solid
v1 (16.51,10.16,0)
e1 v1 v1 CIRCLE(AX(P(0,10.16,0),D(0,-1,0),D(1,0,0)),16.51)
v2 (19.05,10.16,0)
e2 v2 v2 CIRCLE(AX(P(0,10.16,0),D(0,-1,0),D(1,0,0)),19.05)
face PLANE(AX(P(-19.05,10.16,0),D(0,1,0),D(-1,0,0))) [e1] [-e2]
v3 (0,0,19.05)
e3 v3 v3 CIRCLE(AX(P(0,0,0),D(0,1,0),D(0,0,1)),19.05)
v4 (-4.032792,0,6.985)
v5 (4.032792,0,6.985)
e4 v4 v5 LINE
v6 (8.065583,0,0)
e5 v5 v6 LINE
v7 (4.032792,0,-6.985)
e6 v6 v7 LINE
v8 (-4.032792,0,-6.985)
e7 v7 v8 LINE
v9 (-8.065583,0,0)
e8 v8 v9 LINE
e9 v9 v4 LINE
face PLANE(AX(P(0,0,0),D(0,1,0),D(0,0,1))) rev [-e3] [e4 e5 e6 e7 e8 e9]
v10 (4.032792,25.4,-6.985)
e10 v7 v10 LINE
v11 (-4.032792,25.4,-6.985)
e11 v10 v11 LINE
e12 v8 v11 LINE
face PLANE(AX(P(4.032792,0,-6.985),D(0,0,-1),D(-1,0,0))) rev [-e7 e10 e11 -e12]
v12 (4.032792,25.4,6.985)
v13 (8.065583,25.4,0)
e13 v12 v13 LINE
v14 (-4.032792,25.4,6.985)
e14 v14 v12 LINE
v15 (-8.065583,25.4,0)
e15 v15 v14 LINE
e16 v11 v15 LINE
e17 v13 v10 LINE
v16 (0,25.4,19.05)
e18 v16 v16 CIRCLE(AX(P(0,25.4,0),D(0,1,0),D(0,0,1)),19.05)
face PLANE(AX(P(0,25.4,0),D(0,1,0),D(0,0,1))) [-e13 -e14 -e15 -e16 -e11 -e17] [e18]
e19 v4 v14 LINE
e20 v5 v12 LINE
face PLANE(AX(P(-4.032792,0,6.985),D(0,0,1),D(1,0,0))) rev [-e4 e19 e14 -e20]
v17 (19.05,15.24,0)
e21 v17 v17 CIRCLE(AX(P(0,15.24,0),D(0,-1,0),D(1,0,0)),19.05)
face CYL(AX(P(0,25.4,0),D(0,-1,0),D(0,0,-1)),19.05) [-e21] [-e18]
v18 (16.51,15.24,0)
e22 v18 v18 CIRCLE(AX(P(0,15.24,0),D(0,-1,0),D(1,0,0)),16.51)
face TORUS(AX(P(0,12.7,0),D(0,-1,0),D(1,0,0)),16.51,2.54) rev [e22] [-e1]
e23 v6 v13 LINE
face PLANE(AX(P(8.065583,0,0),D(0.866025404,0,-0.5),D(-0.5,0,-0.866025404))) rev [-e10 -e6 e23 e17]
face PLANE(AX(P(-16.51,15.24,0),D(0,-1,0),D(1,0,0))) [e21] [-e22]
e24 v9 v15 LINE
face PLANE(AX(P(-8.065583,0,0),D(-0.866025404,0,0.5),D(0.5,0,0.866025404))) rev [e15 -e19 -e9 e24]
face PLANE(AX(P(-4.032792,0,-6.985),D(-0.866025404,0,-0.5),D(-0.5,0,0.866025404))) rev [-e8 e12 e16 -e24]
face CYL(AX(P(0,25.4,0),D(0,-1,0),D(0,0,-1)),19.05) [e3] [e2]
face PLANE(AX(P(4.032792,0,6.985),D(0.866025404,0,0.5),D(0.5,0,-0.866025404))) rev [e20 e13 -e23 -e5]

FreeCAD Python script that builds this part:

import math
import FreeCAD as App
import Part
import Sketcher

V = App.Vector
Q = App.Units.Quantity


def add_polygon(sketch, points):
    """Adds a closed chain of lines whose ends are joined by coincident constraints."""
    first, n = sketch.GeometryCount, len(points)
    for a, b in zip(points, points[1:] + points[:1]):
        sketch.addGeometry(Part.LineSegment(App.Vector(*a, 0), App.Vector(*b, 0)), False)
    for i in range(n):
        sketch.addConstraint(Sketcher.Constraint("Coincident", first + i, 2, first + (i + 1) % n, 1))

doc = App.newDocument("Part")
body = doc.addObject("PartDesign::Body", "Body")

# Sketch on XZ plane
sketch1 = body.newObject("Sketcher::SketchObject", "Sketch")
sketch1.AttachmentSupport = (doc.getObject("XZ_Plane"), [""])
sketch1.MapMode = "FlatFace"
sketch1.addGeometry(Part.Circle(V(0, 0, 0), V(0, 0, 1), 19), False)
sketch1.addConstraint(Sketcher.Constraint("Coincident", 0, 3, -1, 1))
sketch1.addConstraint(Sketcher.Constraint("Diameter", 0, Q("1.5 in")))
pad1 = body.newObject("PartDesign::Pad", "Pad")
pad1.Profile = sketch1
pad1.Length = Q("1 in")
pad1.Reversed = True

# Sketch on XY plane
sketch2 = body.newObject("Sketcher::SketchObject", "Sketch001")
sketch2.AttachmentSupport = (doc.getObject("XY_Plane"), [""])
sketch2.MapMode = "FlatFace"
sketch2.addGeometry(Part.LineSegment(V(-16.5, 15.2, 0), V(-19.1, 15.2, 0)), False)
sketch2.addGeometry(Part.LineSegment(V(-19.1, 15.2, 0), V(-19.1, 10.2, 0)), False)
sketch2.addGeometry(Part.LineSegment(V(-19.1, 10.2, 0), V(-16.5, 10.2, 0)), False)
sketch2.addGeometry(Part.ArcOfCircle(Part.Circle(V(-16.5, 12.7, 0), V(0, 0, 1), 2.5), math.radians(-90), math.radians(90)), False)
sketch2.addConstraint(Sketcher.Constraint("Coincident", 0, 2, 1, 1))
sketch2.addConstraint(Sketcher.Constraint("Coincident", 1, 2, 2, 1))
sketch2.addConstraint(Sketcher.Constraint("Tangent", 2, 2, 3, 1))
sketch2.addConstraint(Sketcher.Constraint("Tangent", 3, 2, 0, 1))
sketch2.addConstraint(Sketcher.Constraint("Horizontal", 0))
sketch2.addConstraint(Sketcher.Constraint("Vertical", 1))
sketch2.addConstraint(Sketcher.Constraint("Horizontal", 2))
sketch2.addConstraint(Sketcher.Constraint("Radius", 3, Q("0.1 in")))
sketch2.addConstraint(Sketcher.Constraint("DistanceX", 0, 2, 0, 1, Q("0.1 in")))
sketch2.addConstraint(Sketcher.Constraint("DistanceY", -1, 1, 3, 3, Q("0.5 in")))
sketch2.addConstraint(Sketcher.Constraint("DistanceX", 3, 3, -1, 1, Q("0.65 in")))
groove = body.newObject("PartDesign::Groove", "Groove")
groove.Profile = sketch2
groove.ReferenceAxis = (sketch2, ["V_Axis"])
groove.Angle = 360

# Sketch on XZ plane
sketch3 = body.newObject("Sketcher::SketchObject", "Sketch002")
sketch3.AttachmentSupport = (doc.getObject("XZ_Plane"), [""])
sketch3.MapMode = "FlatFace"
sketch3.AttachmentOffset = App.Placement(V(0, 0, -1 * 25.4), App.Rotation())
add_polygon(sketch3, [(8, 0), (4, -7), (-4, -7), (-8, 0), (-4, 7), (4, 7)])  # lines 0-5
sketch3.addConstraint(Sketcher.Constraint("Horizontal", 1))
sketch3.addConstraint(Sketcher.Constraint("Horizontal", 4))
sketch3.addConstraint(Sketcher.Constraint("Symmetric", 0, 2, 3, 2, -1, 1))
sketch3.addConstraint(Sketcher.Constraint("Symmetric", 2, 2, 5, 2, -1, 1))
sketch3.addConstraint(Sketcher.Constraint("PointOnObject", 2, 2, -1))
sketch3.addConstraint(Sketcher.Constraint("Parallel", 2, 5))
sketch3.addConstraint(Sketcher.Constraint("Vertical", 1, 2, 3, 2))
sketch3.addConstraint(Sketcher.Constraint("Angle", 0, Q("-120 deg")))
sketch3.addConstraint(Sketcher.Constraint("DistanceY", 1, 2, 3, 2, Q("0.55 in")))
sketch3.addConstraint(Sketcher.Constraint("DistanceX", 1, 2, 1, 1, 8.065583))
pocket1 = body.newObject("PartDesign::Pocket", "Pocket")
pocket1.Profile = sketch3
pocket1.Type = "ThroughAll"
pocket1.Reversed = True

doc.recompute()
